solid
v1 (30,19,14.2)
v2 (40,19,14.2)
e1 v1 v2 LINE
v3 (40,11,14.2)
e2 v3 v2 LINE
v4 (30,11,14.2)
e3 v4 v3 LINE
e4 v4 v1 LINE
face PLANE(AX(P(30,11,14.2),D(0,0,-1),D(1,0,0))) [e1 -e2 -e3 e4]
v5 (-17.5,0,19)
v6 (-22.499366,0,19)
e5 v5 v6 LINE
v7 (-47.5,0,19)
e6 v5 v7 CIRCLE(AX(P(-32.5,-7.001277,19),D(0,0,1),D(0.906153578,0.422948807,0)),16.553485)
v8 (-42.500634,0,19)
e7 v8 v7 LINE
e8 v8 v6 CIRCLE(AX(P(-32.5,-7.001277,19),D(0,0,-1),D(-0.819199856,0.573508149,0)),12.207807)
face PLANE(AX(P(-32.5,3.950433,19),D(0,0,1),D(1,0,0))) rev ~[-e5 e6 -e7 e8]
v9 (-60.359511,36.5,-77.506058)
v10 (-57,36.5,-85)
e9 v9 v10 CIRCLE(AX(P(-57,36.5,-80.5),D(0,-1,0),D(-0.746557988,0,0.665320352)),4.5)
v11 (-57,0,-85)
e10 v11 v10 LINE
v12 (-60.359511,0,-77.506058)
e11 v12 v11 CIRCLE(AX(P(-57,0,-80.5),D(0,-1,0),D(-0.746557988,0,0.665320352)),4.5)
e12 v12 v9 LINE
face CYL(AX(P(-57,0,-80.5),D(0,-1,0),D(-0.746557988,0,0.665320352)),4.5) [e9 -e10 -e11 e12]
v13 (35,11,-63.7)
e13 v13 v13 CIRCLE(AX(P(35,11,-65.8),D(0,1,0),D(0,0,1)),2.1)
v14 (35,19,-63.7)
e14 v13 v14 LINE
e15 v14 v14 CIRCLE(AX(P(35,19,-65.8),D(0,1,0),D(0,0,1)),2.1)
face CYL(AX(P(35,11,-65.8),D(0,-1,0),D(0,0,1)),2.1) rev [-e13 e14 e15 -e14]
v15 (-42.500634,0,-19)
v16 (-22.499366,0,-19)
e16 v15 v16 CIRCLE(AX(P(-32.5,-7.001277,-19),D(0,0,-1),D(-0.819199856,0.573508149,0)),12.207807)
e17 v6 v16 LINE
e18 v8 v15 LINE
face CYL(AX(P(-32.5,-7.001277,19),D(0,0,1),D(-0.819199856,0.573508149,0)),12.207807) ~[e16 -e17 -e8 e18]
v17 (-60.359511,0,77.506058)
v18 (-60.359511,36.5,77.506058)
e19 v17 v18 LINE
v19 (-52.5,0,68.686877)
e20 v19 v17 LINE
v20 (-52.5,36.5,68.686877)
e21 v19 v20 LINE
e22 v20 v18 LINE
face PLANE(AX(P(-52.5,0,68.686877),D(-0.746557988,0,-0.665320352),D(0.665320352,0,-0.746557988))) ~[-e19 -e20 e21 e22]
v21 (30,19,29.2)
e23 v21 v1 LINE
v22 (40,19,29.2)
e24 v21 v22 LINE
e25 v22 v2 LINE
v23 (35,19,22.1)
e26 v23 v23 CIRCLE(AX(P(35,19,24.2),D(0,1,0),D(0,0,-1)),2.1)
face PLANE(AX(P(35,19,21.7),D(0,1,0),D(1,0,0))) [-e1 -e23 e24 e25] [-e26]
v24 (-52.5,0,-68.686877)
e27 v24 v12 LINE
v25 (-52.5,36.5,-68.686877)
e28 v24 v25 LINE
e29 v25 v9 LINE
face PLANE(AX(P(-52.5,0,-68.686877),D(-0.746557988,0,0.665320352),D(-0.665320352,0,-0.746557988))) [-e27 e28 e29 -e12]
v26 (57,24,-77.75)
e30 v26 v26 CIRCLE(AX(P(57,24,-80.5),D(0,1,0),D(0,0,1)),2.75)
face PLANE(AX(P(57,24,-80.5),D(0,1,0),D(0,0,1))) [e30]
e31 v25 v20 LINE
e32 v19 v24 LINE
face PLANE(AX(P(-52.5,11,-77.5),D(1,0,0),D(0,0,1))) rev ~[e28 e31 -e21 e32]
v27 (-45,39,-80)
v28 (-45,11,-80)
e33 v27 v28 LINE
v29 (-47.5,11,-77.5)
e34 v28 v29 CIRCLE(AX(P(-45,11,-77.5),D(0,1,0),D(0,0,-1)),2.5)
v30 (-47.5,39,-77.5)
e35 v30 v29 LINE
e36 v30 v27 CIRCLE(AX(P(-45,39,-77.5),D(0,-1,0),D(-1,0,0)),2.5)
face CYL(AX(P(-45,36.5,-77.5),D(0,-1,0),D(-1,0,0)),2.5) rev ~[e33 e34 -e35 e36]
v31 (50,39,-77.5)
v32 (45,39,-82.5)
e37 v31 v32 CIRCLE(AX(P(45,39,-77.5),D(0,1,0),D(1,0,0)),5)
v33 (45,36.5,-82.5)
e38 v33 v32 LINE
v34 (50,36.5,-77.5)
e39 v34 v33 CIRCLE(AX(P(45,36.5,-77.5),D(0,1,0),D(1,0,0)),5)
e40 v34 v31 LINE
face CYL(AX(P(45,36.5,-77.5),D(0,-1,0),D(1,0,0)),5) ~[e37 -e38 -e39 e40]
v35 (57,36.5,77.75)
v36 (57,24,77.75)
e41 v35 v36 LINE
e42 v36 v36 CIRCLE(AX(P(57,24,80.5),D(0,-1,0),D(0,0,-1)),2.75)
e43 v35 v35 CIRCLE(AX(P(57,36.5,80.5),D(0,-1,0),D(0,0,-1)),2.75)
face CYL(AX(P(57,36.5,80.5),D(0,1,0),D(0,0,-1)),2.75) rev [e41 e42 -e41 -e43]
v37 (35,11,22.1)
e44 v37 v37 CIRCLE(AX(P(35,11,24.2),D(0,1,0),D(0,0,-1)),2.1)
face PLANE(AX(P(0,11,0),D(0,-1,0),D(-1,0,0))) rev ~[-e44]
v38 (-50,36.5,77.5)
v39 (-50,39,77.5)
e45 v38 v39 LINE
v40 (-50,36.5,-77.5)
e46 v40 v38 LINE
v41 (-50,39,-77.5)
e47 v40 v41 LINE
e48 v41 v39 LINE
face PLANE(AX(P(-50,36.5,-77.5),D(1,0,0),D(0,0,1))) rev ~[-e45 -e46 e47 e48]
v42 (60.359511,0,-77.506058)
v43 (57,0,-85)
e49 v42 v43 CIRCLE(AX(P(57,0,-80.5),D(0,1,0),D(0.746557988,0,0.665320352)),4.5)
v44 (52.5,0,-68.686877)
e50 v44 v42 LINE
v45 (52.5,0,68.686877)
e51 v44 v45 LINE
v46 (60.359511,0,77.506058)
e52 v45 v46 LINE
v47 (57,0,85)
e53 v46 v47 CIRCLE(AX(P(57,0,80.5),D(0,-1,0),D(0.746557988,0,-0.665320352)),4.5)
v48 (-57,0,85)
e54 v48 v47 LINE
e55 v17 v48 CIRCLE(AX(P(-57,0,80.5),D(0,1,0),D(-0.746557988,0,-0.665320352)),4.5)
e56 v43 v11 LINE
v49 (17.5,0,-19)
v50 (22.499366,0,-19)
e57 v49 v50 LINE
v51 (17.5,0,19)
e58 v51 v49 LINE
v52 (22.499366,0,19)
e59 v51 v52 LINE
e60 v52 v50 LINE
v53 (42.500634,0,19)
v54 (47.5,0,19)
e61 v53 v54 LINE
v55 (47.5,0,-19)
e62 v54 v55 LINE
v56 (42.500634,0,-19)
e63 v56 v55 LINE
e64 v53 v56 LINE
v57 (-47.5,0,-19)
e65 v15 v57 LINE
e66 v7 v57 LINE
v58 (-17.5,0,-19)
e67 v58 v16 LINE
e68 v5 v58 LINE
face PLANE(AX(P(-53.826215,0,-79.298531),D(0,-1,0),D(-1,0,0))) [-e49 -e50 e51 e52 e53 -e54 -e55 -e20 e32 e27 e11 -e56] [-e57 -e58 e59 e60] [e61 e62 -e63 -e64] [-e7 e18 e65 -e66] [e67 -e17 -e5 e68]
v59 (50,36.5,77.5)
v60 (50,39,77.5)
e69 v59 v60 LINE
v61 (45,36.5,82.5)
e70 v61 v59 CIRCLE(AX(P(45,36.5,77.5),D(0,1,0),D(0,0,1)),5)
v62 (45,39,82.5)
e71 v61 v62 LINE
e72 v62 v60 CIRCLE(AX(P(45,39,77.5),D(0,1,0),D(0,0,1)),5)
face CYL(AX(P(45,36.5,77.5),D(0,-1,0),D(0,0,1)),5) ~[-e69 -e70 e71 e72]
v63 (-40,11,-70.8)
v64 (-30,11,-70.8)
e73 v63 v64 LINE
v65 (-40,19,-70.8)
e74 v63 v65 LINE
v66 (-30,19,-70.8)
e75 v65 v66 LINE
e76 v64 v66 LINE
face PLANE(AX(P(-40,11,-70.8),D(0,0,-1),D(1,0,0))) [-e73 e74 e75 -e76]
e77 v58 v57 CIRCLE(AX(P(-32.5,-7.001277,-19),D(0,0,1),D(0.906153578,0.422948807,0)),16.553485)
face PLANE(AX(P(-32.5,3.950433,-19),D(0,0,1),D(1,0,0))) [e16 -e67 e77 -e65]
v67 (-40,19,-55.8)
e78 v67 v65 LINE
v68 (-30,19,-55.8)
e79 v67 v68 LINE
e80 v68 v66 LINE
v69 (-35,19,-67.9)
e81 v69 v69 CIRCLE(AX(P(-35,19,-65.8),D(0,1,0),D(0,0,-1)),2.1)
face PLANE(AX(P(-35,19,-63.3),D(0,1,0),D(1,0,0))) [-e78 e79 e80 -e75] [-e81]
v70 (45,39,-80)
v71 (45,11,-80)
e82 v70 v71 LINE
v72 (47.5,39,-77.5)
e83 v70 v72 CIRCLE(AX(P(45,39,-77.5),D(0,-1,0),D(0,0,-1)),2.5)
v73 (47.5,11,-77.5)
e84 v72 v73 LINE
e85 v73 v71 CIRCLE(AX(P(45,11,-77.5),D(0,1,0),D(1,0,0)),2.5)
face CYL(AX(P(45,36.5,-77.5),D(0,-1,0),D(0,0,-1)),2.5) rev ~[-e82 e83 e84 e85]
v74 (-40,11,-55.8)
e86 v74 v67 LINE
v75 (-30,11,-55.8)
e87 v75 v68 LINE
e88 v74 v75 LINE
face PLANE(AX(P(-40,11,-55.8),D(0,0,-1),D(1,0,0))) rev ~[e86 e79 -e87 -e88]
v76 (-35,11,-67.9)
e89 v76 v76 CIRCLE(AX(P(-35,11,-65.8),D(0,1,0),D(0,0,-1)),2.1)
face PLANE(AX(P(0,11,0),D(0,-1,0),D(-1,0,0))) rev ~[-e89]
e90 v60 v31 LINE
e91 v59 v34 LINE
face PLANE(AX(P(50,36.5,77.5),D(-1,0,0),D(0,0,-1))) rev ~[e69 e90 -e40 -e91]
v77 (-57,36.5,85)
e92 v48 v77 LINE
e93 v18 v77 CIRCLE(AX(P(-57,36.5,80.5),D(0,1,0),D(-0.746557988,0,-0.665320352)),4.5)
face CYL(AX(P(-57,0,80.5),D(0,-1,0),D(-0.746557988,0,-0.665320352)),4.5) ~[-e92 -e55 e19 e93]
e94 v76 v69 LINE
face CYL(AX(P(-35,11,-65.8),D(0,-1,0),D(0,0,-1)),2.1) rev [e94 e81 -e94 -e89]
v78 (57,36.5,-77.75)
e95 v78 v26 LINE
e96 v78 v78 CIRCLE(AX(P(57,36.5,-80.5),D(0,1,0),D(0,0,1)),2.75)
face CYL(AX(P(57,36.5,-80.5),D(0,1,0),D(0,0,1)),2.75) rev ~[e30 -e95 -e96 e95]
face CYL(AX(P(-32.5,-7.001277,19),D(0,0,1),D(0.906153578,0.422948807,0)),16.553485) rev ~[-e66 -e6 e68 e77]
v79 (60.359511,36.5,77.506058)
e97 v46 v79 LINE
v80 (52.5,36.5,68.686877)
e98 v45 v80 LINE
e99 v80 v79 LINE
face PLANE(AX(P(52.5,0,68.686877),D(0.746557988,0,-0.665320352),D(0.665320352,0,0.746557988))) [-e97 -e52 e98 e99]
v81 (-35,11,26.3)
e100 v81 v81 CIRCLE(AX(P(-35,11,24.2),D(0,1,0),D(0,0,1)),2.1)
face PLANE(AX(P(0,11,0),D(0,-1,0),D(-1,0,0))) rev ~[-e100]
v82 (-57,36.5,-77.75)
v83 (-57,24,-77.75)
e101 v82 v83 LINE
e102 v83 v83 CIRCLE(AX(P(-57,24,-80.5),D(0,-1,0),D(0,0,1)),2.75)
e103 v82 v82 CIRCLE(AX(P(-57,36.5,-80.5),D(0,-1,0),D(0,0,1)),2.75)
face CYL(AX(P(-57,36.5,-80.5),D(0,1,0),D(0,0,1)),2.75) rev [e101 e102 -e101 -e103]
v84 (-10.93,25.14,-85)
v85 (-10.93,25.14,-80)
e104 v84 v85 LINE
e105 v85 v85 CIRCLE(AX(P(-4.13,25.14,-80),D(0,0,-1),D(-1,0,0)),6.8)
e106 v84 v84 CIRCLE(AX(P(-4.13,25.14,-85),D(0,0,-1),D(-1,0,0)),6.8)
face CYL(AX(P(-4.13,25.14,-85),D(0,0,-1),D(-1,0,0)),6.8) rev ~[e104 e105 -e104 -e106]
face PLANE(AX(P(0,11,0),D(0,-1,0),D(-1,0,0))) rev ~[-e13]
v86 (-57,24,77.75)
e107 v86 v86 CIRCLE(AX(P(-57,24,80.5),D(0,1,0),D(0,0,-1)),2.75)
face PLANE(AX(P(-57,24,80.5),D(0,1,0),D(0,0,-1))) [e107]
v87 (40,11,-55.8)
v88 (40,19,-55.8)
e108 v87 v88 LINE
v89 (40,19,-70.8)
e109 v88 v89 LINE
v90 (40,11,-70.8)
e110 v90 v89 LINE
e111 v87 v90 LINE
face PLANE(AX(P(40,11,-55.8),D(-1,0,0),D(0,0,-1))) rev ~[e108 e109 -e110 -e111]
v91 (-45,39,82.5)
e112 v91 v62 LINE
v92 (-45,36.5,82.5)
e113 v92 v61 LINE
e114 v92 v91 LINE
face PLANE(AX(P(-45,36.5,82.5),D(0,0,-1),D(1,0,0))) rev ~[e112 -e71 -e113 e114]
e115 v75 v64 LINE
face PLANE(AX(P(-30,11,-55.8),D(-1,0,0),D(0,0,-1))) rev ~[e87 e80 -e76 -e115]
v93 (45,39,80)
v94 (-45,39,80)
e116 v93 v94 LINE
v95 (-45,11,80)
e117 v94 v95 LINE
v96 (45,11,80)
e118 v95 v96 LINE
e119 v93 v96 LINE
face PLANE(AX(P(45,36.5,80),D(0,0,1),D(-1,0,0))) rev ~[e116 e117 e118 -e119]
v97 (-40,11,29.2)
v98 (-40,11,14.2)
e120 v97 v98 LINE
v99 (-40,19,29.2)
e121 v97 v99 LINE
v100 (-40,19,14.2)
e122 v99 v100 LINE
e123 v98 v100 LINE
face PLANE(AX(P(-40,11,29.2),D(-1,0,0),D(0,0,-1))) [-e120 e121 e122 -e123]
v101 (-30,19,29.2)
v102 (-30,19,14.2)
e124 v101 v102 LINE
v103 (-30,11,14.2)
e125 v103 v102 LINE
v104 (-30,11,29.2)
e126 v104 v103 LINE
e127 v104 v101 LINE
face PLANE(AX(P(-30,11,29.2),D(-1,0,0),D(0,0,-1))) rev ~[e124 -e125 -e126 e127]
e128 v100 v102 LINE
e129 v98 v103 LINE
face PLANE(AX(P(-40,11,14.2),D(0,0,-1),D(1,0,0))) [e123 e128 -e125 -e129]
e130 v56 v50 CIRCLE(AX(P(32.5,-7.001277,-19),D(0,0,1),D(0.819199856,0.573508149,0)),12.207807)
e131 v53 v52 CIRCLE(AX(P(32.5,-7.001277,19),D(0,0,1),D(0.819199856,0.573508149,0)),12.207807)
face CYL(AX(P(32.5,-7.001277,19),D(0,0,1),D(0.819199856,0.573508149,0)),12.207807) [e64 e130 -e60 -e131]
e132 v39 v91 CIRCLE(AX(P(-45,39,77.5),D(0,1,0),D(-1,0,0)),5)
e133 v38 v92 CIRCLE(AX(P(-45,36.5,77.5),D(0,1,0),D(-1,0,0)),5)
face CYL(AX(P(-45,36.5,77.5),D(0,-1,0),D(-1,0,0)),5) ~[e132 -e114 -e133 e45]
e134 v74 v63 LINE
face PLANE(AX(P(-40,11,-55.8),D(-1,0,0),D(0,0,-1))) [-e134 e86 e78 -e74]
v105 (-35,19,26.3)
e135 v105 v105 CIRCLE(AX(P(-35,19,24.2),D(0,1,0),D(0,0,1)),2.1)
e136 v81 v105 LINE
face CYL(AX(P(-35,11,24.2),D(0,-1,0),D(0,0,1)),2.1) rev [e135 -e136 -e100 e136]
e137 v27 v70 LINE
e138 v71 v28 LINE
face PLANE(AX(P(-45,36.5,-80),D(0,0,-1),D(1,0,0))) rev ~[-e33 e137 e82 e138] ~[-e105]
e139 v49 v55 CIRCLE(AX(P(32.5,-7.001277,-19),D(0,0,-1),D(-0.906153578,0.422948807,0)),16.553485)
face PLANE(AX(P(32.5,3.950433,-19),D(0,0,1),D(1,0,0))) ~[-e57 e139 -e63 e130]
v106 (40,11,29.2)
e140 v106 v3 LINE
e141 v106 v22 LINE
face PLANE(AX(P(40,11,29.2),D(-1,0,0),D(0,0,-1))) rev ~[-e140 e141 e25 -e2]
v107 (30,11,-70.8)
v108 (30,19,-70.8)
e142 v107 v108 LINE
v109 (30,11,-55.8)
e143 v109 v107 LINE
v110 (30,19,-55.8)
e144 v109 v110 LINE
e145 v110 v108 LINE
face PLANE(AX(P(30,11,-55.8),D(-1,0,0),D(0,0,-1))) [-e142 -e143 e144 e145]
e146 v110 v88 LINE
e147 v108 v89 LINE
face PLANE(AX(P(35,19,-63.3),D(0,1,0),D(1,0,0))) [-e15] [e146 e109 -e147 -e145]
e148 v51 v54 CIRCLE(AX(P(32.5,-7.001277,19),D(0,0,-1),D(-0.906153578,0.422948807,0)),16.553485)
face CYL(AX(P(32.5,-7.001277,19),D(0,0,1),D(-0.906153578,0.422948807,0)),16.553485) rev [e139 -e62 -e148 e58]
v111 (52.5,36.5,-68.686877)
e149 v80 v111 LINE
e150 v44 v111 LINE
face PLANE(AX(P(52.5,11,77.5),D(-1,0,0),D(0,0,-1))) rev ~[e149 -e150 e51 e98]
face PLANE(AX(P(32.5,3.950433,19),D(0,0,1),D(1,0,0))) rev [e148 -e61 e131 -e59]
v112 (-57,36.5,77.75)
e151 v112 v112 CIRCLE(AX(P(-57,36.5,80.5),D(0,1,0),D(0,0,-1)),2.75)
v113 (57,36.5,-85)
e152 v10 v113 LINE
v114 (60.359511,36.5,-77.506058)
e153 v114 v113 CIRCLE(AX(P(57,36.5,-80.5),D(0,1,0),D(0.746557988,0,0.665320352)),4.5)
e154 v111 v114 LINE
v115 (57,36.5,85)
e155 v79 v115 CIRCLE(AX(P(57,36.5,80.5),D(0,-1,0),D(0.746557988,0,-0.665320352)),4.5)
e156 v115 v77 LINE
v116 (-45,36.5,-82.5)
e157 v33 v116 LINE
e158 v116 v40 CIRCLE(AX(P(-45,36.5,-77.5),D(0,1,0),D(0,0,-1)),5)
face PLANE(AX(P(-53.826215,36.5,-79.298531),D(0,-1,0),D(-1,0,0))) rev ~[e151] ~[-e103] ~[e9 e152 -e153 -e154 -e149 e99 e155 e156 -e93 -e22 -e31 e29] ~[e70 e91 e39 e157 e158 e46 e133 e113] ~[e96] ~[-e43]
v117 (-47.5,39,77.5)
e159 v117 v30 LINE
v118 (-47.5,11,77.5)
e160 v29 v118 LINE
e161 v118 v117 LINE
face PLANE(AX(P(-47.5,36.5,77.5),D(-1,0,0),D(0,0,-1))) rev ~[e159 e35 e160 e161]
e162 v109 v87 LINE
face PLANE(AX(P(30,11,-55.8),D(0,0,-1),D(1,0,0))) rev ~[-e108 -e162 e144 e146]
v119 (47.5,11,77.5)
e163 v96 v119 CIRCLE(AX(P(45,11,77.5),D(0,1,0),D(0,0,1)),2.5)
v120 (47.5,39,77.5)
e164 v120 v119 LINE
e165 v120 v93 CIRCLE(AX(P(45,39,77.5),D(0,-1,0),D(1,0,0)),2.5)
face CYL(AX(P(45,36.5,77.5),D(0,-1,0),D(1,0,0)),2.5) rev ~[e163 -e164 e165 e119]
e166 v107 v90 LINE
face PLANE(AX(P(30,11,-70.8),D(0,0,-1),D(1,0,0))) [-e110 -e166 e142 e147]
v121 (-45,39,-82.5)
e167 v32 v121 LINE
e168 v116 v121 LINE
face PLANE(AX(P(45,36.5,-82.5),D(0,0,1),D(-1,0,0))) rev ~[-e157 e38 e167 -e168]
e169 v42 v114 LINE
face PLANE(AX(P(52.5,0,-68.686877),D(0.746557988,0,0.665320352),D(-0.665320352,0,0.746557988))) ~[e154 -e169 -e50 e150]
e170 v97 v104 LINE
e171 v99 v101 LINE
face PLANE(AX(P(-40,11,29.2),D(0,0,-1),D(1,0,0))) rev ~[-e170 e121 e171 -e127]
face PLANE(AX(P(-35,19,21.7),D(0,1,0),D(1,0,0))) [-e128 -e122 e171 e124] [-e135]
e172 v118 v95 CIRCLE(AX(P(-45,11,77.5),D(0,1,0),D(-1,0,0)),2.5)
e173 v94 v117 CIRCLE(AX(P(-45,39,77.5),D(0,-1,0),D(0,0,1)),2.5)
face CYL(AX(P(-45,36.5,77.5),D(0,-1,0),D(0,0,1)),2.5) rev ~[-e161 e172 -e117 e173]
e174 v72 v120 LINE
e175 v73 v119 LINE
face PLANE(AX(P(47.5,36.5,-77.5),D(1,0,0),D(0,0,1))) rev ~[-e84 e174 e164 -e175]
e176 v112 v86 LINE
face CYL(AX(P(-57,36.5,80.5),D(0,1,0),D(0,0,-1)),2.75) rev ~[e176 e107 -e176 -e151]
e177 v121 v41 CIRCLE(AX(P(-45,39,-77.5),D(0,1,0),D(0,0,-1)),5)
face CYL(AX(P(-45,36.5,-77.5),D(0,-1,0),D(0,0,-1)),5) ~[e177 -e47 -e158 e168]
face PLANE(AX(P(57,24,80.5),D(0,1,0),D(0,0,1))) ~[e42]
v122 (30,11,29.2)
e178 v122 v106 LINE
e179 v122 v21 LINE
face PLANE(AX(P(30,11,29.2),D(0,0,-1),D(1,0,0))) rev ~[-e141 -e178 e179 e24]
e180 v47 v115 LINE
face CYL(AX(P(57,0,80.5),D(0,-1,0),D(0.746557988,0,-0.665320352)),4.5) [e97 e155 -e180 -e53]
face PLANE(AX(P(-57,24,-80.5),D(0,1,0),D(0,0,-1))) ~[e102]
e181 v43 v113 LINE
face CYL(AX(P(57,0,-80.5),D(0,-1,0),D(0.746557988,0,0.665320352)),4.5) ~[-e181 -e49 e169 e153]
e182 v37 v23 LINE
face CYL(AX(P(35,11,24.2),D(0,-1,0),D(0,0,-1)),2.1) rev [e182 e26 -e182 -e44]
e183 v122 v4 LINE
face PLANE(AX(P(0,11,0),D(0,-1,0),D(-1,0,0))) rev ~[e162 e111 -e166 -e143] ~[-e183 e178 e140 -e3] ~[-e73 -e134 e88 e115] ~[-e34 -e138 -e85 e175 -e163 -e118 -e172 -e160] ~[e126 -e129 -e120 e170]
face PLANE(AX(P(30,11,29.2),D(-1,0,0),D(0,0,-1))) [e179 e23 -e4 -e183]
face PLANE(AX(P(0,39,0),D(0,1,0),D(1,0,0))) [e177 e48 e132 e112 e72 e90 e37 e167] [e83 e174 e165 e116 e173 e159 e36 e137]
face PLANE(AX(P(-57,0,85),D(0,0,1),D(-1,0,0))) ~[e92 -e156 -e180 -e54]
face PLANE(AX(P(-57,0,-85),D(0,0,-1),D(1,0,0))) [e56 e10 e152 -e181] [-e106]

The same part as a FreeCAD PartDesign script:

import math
import FreeCAD as App
import Part
import Sketcher
from FreeCAD import Vector

doc = App.newDocument("Part")
body = doc.addObject("PartDesign::Body", "Body")

sketch1 = body.newObject("Sketcher::SketchObject", "Sketch")
sketch1.AttachmentSupport = (doc.getObject("XZ_Plane"), [""])
sketch1.MapMode = "FlatFace"
sketch1.addGeometry(Part.LineSegment(Vector(45, -85, 0), Vector(-45, -85, 0)), False)
sketch1.addGeometry(Part.ArcOfCircle(Part.Circle(Vector(-45, -78, 0), Vector(0, 0, 1), 8), math.radians(180), math.radians(270)), False)
sketch1.addGeometry(Part.LineSegment(Vector(-52, -78, 0), Vector(-52, 78, 0)), False)
sketch1.addGeometry(Part.ArcOfCircle(Part.Circle(Vector(-45, 78, 0), Vector(0, 0, 1), 8), math.radians(90), math.radians(180)), False)
sketch1.addGeometry(Part.LineSegment(Vector(-45, 85, 0), Vector(45, 85, 0)), False)
sketch1.addGeometry(Part.ArcOfCircle(Part.Circle(Vector(45, 78, 0), Vector(0, 0, 1), 8), math.radians(0), math.radians(90)), False)
sketch1.addGeometry(Part.LineSegment(Vector(52, 78, 0), Vector(52, -78, 0)), False)
sketch1.addGeometry(Part.ArcOfCircle(Part.Circle(Vector(45, -78, 0), Vector(0, 0, 1), 8), math.radians(-90), math.radians(0)), False)
sketch1.addConstraint(Sketcher.Constraint("Tangent", 0, 2, 1, 2))
sketch1.addConstraint(Sketcher.Constraint("Tangent", 1, 1, 2, 1))
sketch1.addConstraint(Sketcher.Constraint("Tangent", 2, 2, 3, 2))
sketch1.addConstraint(Sketcher.Constraint("Tangent", 3, 1, 4, 1))
sketch1.addConstraint(Sketcher.Constraint("Tangent", 4, 2, 5, 2))
sketch1.addConstraint(Sketcher.Constraint("Tangent", 5, 1, 6, 1))
sketch1.addConstraint(Sketcher.Constraint("Tangent", 6, 2, 7, 2))
sketch1.addConstraint(Sketcher.Constraint("Tangent", 7, 1, 0, 1))
sketch1.addConstraint(Sketcher.Constraint("Horizontal", 0))
sketch1.addConstraint(Sketcher.Constraint("Vertical", 2))
sketch1.addConstraint(Sketcher.Constraint("Horizontal", 4))
sketch1.addConstraint(Sketcher.Constraint("Vertical", 6))
sketch1.addConstraint(Sketcher.Constraint("Equal", 1, 3))
sketch1.addConstraint(Sketcher.Constraint("Equal", 3, 5))
sketch1.addConstraint(Sketcher.Constraint("Equal", 5, 7))
sketch1.addConstraint(Sketcher.Constraint("Symmetric", 1, 3, 5, 3, -1, 1))
sketch1.addConstraint(Sketcher.Constraint("Radius", 1, 7.5))
sketch1.addConstraint(Sketcher.Constraint("DistanceX", 0, 2, 0, 1, 90.0))
sketch1.addConstraint(Sketcher.Constraint("DistanceY", 2, 1, 2, 2, 155.0))
pad1 = body.newObject("PartDesign::Pad", "Pad")
pad1.Profile = sketch1
pad1.Length = 11
pad1.Reversed = True

sketch2 = body.newObject("Sketcher::SketchObject", "Sketch001")
sketch2.AttachmentSupport = (doc.getObject("XZ_Plane"), [""])
sketch2.MapMode = "FlatFace"
sketch2.AttachmentOffset = App.Placement(Vector(0, 0, -11), App.Rotation())
sketch2.addGeometry(Part.ArcOfCircle(Part.Circle(Vector(45, -77.5, 0), Vector(0, 0, 1), 7.5), math.radians(-90), math.radians(0)), False)
sketch2.addGeometry(Part.LineSegment(Vector(45, -85, 0), Vector(-45, -85, 0)), False)
sketch2.addGeometry(Part.ArcOfCircle(Part.Circle(Vector(-45, -77.5, 0), Vector(0, 0, 1), 7.5), math.radians(180), math.radians(270)), False)
sketch2.addGeometry(Part.LineSegment(Vector(-52.5, -77.5, 0), Vector(-52.5, 77.5, 0)), False)
sketch2.addGeometry(Part.ArcOfCircle(Part.Circle(Vector(-45, 77.5, 0), Vector(0, 0, 1), 7.5), math.radians(90), math.radians(180)), False)
sketch2.addGeometry(Part.LineSegment(Vector(-45, 85, 0), Vector(45, 85, 0)), False)
sketch2.addGeometry(Part.ArcOfCircle(Part.Circle(Vector(45, 77.5, 0), Vector(0, 0, 1), 7.5), math.radians(0), math.radians(90)), False)
sketch2.addGeometry(Part.LineSegment(Vector(52.5, 77.5, 0), Vector(52.5, -77.5, 0)), False)
sketch2.addGeometry(Part.ArcOfCircle(Part.Circle(Vector(-45, -77.5, 0), Vector(0, 0, 1), 2.5), math.radians(180), math.radians(270)), False)
sketch2.addGeometry(Part.LineSegment(Vector(-45, -80, 0), Vector(45, -80, 0)), False)
sketch2.addGeometry(Part.ArcOfCircle(Part.Circle(Vector(45, -77.5, 0), Vector(0, 0, 1), 2.5), math.radians(-90), math.radians(0)), False)
sketch2.addGeometry(Part.LineSegment(Vector(47.5, -77.5, 0), Vector(47.5, 77.5, 0)), False)
sketch2.addGeometry(Part.ArcOfCircle(Part.Circle(Vector(45, 77.5, 0), Vector(0, 0, 1), 2.5), math.radians(0), math.radians(90)), False)
sketch2.addGeometry(Part.LineSegment(Vector(45, 80, 0), Vector(-45, 80, 0)), False)
sketch2.addGeometry(Part.ArcOfCircle(Part.Circle(Vector(-45, 77.5, 0), Vector(0, 0, 1), 2.5), math.radians(90), math.radians(180)), False)
sketch2.addGeometry(Part.LineSegment(Vector(-47.5, 77.5, 0), Vector(-47.5, -77.5, 0)), False)
sketch2.addConstraint(Sketcher.Constraint("Tangent", 0, 1, 1, 1))
sketch2.addConstraint(Sketcher.Constraint("Tangent", 1, 2, 2, 2))
sketch2.addConstraint(Sketcher.Constraint("Tangent", 2, 1, 3, 1))
sketch2.addConstraint(Sketcher.Constraint("Tangent", 3, 2, 4, 2))
sketch2.addConstraint(Sketcher.Constraint("Tangent", 4, 1, 5, 1))
sketch2.addConstraint(Sketcher.Constraint("Tangent", 5, 2, 6, 2))
sketch2.addConstraint(Sketcher.Constraint("Tangent", 6, 1, 7, 1))
sketch2.addConstraint(Sketcher.Constraint("Tangent", 7, 2, 0, 2))
sketch2.addConstraint(Sketcher.Constraint("Tangent", 8, 2, 9, 1))
sketch2.addConstraint(Sketcher.Constraint("Tangent", 9, 2, 10, 1))
sketch2.addConstraint(Sketcher.Constraint("Tangent", 10, 2, 11, 1))
sketch2.addConstraint(Sketcher.Constraint("Tangent", 11, 2, 12, 1))
sketch2.addConstraint(Sketcher.Constraint("Tangent", 12, 2, 13, 1))
sketch2.addConstraint(Sketcher.Constraint("Tangent", 13, 2, 14, 1))
sketch2.addConstraint(Sketcher.Constraint("Tangent", 14, 2, 15, 1))
sketch2.addConstraint(Sketcher.Constraint("Tangent", 15, 2, 8, 1))
sketch2.addConstraint(Sketcher.Constraint("Horizontal", 1))
sketch2.addConstraint(Sketcher.Constraint("Vertical", 3))
sketch2.addConstraint(Sketcher.Constraint("Horizontal", 5))
sketch2.addConstraint(Sketcher.Constraint("Vertical", 7))
sketch2.addConstraint(Sketcher.Constraint("Horizontal", 9))
sketch2.addConstraint(Sketcher.Constraint("Vertical", 11))
sketch2.addConstraint(Sketcher.Constraint("Horizontal", 13))
sketch2.addConstraint(Sketcher.Constraint("Vertical", 15))
sketch2.addConstraint(Sketcher.Constraint("Coincident", 8, 3, 2, 3))
sketch2.addConstraint(Sketcher.Constraint("Coincident", 10, 3, 0, 3))
sketch2.addConstraint(Sketcher.Constraint("Coincident", 12, 3, 6, 3))
sketch2.addConstraint(Sketcher.Constraint("Equal", 0, 2))
sketch2.addConstraint(Sketcher.Constraint("Equal", 2, 4))
sketch2.addConstraint(Sketcher.Constraint("Equal", 4, 6))
sketch2.addConstraint(Sketcher.Constraint("Equal", 12, 14))
sketch2.addConstraint(Sketcher.Constraint("Symmetric", 0, 3, 4, 3, -1, 1))
sketch2.addConstraint(Sketcher.Constraint("Radius", 0, 7.5))
sketch2.addConstraint(Sketcher.Constraint("Radius", 8, 2.5))
sketch2.addConstraint(Sketcher.Constraint("DistanceX", 1, 2, 1, 1, 90.0))
sketch2.addConstraint(Sketcher.Constraint("DistanceY", 3, 1, 3, 2, 155.0))
pad2 = body.newObject("PartDesign::Pad", "Pad001")
pad2.Profile = sketch2
pad2.Length = 25.5
pad2.Reversed = True

sketch3 = body.newObject("Sketcher::SketchObject", "Sketch002")
sketch3.AttachmentSupport = (doc.getObject("XZ_Plane"), [""])
sketch3.MapMode = "FlatFace"
sketch3.AttachmentOffset = App.Placement(Vector(0, 0, -36.5), App.Rotation())
sketch3.addGeometry(Part.LineSegment(Vector(45, -82.5, 0), Vector(-45, -82.5, 0)), False)
sketch3.addGeometry(Part.ArcOfCircle(Part.Circle(Vector(-45, -77.5, 0), Vector(0, 0, 1), 5), math.radians(180), math.radians(270)), False)
sketch3.addGeometry(Part.LineSegment(Vector(-50, -77.5, 0), Vector(-50, 77.5, 0)), False)
sketch3.addGeometry(Part.ArcOfCircle(Part.Circle(Vector(-45, 77.5, 0), Vector(0, 0, 1), 5), math.radians(90), math.radians(180)), False)
sketch3.addGeometry(Part.LineSegment(Vector(-45, 82.5, 0), Vector(45, 82.5, 0)), False)
sketch3.addGeometry(Part.ArcOfCircle(Part.Circle(Vector(45, 77.5, 0), Vector(0, 0, 1), 5), math.radians(0), math.radians(90)), False)
sketch3.addGeometry(Part.LineSegment(Vector(50, 77.5, 0), Vector(50, -77.5, 0)), False)
sketch3.addGeometry(Part.ArcOfCircle(Part.Circle(Vector(45, -77.5, 0), Vector(0, 0, 1), 5), math.radians(-90), math.radians(0)), False)
sketch3.addGeometry(Part.ArcOfCircle(Part.Circle(Vector(-45, 77.5, 0), Vector(0, 0, 1), 2.5), math.radians(90), math.radians(180)), False)
sketch3.addGeometry(Part.LineSegment(Vector(-47.5, 77.5, 0), Vector(-47.5, -77.5, 0)), False)
sketch3.addGeometry(Part.ArcOfCircle(Part.Circle(Vector(-45, -77.5, 0), Vector(0, 0, 1), 2.5), math.radians(180), math.radians(270)), False)
sketch3.addGeometry(Part.LineSegment(Vector(-45, -80, 0), Vector(45, -80, 0)), False)
sketch3.addGeometry(Part.ArcOfCircle(Part.Circle(Vector(45, -77.5, 0), Vector(0, 0, 1), 2.5), math.radians(-90), math.radians(0)), False)
sketch3.addGeometry(Part.LineSegment(Vector(47.5, -77.5, 0), Vector(47.5, 77.5, 0)), False)
sketch3.addGeometry(Part.ArcOfCircle(Part.Circle(Vector(45, 77.5, 0), Vector(0, 0, 1), 2.5), math.radians(0), math.radians(90)), False)
sketch3.addGeometry(Part.LineSegment(Vector(45, 80, 0), Vector(-45, 80, 0)), False)
sketch3.addConstraint(Sketcher.Constraint("Tangent", 0, 2, 1, 2))
sketch3.addConstraint(Sketcher.Constraint("Tangent", 1, 1, 2, 1))
sketch3.addConstraint(Sketcher.Constraint("Tangent", 2, 2, 3, 2))
sketch3.addConstraint(Sketcher.Constraint("Tangent", 3, 1, 4, 1))
sketch3.addConstraint(Sketcher.Constraint("Tangent", 4, 2, 5, 2))
sketch3.addConstraint(Sketcher.Constraint("Tangent", 5, 1, 6, 1))
sketch3.addConstraint(Sketcher.Constraint("Tangent", 6, 2, 7, 2))
sketch3.addConstraint(Sketcher.Constraint("Tangent", 7, 1, 0, 1))
sketch3.addConstraint(Sketcher.Constraint("Tangent", 8, 2, 9, 1))
sketch3.addConstraint(Sketcher.Constraint("Tangent", 9, 2, 10, 1))
sketch3.addConstraint(Sketcher.Constraint("Tangent", 10, 2, 11, 1))
sketch3.addConstraint(Sketcher.Constraint("Tangent", 11, 2, 12, 1))
sketch3.addConstraint(Sketcher.Constraint("Tangent", 12, 2, 13, 1))
sketch3.addConstraint(Sketcher.Constraint("Tangent", 13, 2, 14, 1))
sketch3.addConstraint(Sketcher.Constraint("Tangent", 14, 2, 15, 1))
sketch3.addConstraint(Sketcher.Constraint("Tangent", 15, 2, 8, 1))
sketch3.addConstraint(Sketcher.Constraint("Horizontal", 0))
sketch3.addConstraint(Sketcher.Constraint("Vertical", 2))
sketch3.addConstraint(Sketcher.Constraint("Horizontal", 4))
sketch3.addConstraint(Sketcher.Constraint("Vertical", 6))
sketch3.addConstraint(Sketcher.Constraint("Vertical", 9))
sketch3.addConstraint(Sketcher.Constraint("Horizontal", 11))
sketch3.addConstraint(Sketcher.Constraint("Vertical", 13))
sketch3.addConstraint(Sketcher.Constraint("Horizontal", 15))
sketch3.addConstraint(Sketcher.Constraint("Coincident", 8, 3, 3, 3))
sketch3.addConstraint(Sketcher.Constraint("Coincident", 10, 3, 1, 3))
sketch3.addConstraint(Sketcher.Constraint("Coincident", 12, 3, 7, 3))
sketch3.addConstraint(Sketcher.Constraint("Equal", 1, 3))
sketch3.addConstraint(Sketcher.Constraint("Equal", 3, 5))
sketch3.addConstraint(Sketcher.Constraint("Equal", 5, 7))
sketch3.addConstraint(Sketcher.Constraint("Equal", 12, 14))
sketch3.addConstraint(Sketcher.Constraint("Symmetric", 1, 3, 5, 3, -1, 1))
sketch3.addConstraint(Sketcher.Constraint("Radius", 1, 5.0))
sketch3.addConstraint(Sketcher.Constraint("Radius", 8, 2.5))
sketch3.addConstraint(Sketcher.Constraint("DistanceX", 0, 2, 0, 1, 90.0))
sketch3.addConstraint(Sketcher.Constraint("DistanceY", 2, 1, 2, 2, 155.0))
pad3 = body.newObject("PartDesign::Pad", "Pad002")
pad3.Profile = sketch3
pad3.Length = 2.5
pad3.Reversed = True

sketch4 = body.newObject("Sketcher::SketchObject", "Sketch003")
sketch4.AttachmentSupport = (doc.getObject("XZ_Plane"), [""])
sketch4.MapMode = "FlatFace"
sketch4.addGeometry(Part.LineSegment(Vector(57, 85, 0), Vector(45, 85, 0)), False)
sketch4.addGeometry(Part.ArcOfCircle(Part.Circle(Vector(45, 77.5, 0), Vector(0, 0, 1), 7.5), math.radians(0), math.radians(90)), False)
sketch4.addGeometry(Part.LineSegment(Vector(52.5, 77.5, 0), Vector(52.5, 68.7, 0)), False)
sketch4.addGeometry(Part.LineSegment(Vector(52.5, 68.7, 0), Vector(60.4, 77.5, 0)), False)
sketch4.addGeometry(Part.ArcOfCircle(Part.Circle(Vector(57, 80.5, 0), Vector(0, 0, 1), 4.5), math.radians(-42), math.radians(90)), False)
sketch4.addConstraint(Sketcher.Constraint("Tangent", 0, 2, 1, 2))
sketch4.addConstraint(Sketcher.Constraint("Tangent", 1, 1, 2, 1))
sketch4.addConstraint(Sketcher.Constraint("Coincident", 2, 2, 3, 1))
sketch4.addConstraint(Sketcher.Constraint("Tangent", 3, 2, 4, 1))
sketch4.addConstraint(Sketcher.Constraint("Tangent", 4, 2, 0, 1))
sketch4.addConstraint(Sketcher.Constraint("Horizontal", 0))
sketch4.addConstraint(Sketcher.Constraint("Vertical", 2))
sketch4.addConstraint(Sketcher.Constraint("Radius", 1, 7.5))
sketch4.addConstraint(Sketcher.Constraint("Radius", 4, 4.5))
sketch4.addConstraint(Sketcher.Constraint("DistanceX", 0, 2, 0, 1, 12.0))
sketch4.addConstraint(Sketcher.Constraint("DistanceX", -1, 1, 1, 3, 45.0))
sketch4.addConstraint(Sketcher.Constraint("DistanceY", -1, 1, 0, 2, 85.0))
sketch4.addConstraint(Sketcher.Constraint("DistanceY", 2, 2, 2, 1, 8.813123))
pad4 = body.newObject("PartDesign::Pad", "Pad003")
pad4.Profile = sketch4
pad4.Length = 36.5
pad4.Reversed = True
doc.recompute()

mirrored = body.newObject("PartDesign::Mirrored", "Mirrored")
mirrored.Originals = [pad4]
mirrored.MirrorPlane = (doc.getObject("YZ_Plane"), [""])
body.Tip = mirrored
doc.recompute()

mirrored2 = body.newObject("PartDesign::Mirrored", "Mirrored001")
mirrored2.Originals = [pad4]
mirrored2.MirrorPlane = (doc.getObject("XY_Plane"), [""])
body.Tip = mirrored2

sketch5 = body.newObject("Sketcher::SketchObject", "Sketch004")
sketch5.AttachmentSupport = (doc.getObject("XZ_Plane"), [""])
sketch5.MapMode = "FlatFace"
sketch5.addGeometry(Part.LineSegment(Vector(-57, -85, 0), Vector(-45, -85, 0)), False)
sketch5.addGeometry(Part.ArcOfCircle(Part.Circle(Vector(-45, -77.5, 0), Vector(0, 0, 1), 7.5), math.radians(180), math.radians(270)), False)
sketch5.addGeometry(Part.LineSegment(Vector(-52.5, -77.5, 0), Vector(-52.5, -68.7, 0)), False)
sketch5.addGeometry(Part.LineSegment(Vector(-52.5, -68.7, 0), Vector(-60.4, -77.5, 0)), False)
sketch5.addGeometry(Part.ArcOfCircle(Part.Circle(Vector(-57, -80.5, 0), Vector(0, 0, 1), 4.5), math.radians(138), math.radians(270)), False)
sketch5.addConstraint(Sketcher.Constraint("Tangent", 0, 2, 1, 2))
sketch5.addConstraint(Sketcher.Constraint("Tangent", 1, 1, 2, 1))
sketch5.addConstraint(Sketcher.Constraint("Coincident", 2, 2, 3, 1))
sketch5.addConstraint(Sketcher.Constraint("Tangent", 3, 2, 4, 1))
sketch5.addConstraint(Sketcher.Constraint("Tangent", 4, 2, 0, 1))
sketch5.addConstraint(Sketcher.Constraint("Horizontal", 0))
sketch5.addConstraint(Sketcher.Constraint("Vertical", 2))
sketch5.addConstraint(Sketcher.Constraint("Radius", 1, 7.5))
sketch5.addConstraint(Sketcher.Constraint("Radius", 4, 4.5))
sketch5.addConstraint(Sketcher.Constraint("DistanceX", 0, 1, 0, 2, 12.0))
sketch5.addConstraint(Sketcher.Constraint("DistanceX", 1, 3, -1, 1, 45.0))
sketch5.addConstraint(Sketcher.Constraint("DistanceY", 0, 2, -1, 1, 85.0))
sketch5.addConstraint(Sketcher.Constraint("DistanceY", 2, 1, 2, 2, 8.813123))
pad5 = body.newObject("PartDesign::Pad", "Pad004")
pad5.Profile = sketch5
pad5.Length = 36.5
pad5.Reversed = True

sketch6 = body.newObject("Sketcher::SketchObject", "Sketch005")
sketch6.AttachmentSupport = (doc.getObject("XZ_Plane"), [""])
sketch6.MapMode = "FlatFace"
sketch6.AttachmentOffset = App.Placement(Vector(0, 0, -11), App.Rotation())
sketch6.addGeometry(Part.LineSegment(Vector(-40, -70.8, 0), Vector(-40, -55.8, 0)), False)
sketch6.addGeometry(Part.LineSegment(Vector(-40, -55.8, 0), Vector(-30, -55.8, 0)), False)
sketch6.addGeometry(Part.LineSegment(Vector(-30, -55.8, 0), Vector(-30, -70.8, 0)), False)
sketch6.addGeometry(Part.LineSegment(Vector(-30, -70.8, 0), Vector(-40, -70.8, 0)), False)
sketch6.addGeometry(Part.Circle(Vector(-35, -65.8, 0), Vector(0, 0, 1), 2.1), False)
sketch6.addGeometry(Part.LineSegment(Vector(-40, 14.2, 0), Vector(-40, 29.2, 0)), False)
sketch6.addGeometry(Part.LineSegment(Vector(-40, 29.2, 0), Vector(-30, 29.2, 0)), False)
sketch6.addGeometry(Part.LineSegment(Vector(-30, 29.2, 0), Vector(-30, 14.2, 0)), False)
sketch6.addGeometry(Part.LineSegment(Vector(-30, 14.2, 0), Vector(-40, 14.2, 0)), False)
sketch6.addGeometry(Part.Circle(Vector(-35, 24.2, 0), Vector(0, 0, 1), 2.1), False)
sketch6.addGeometry(Part.LineSegment(Vector(30, 14.2, 0), Vector(30, 29.2, 0)), False)
sketch6.addGeometry(Part.LineSegment(Vector(30, 29.2, 0), Vector(40, 29.2, 0)), False)
sketch6.addGeometry(Part.LineSegment(Vector(40, 29.2, 0), Vector(40, 14.2, 0)), False)
sketch6.addGeometry(Part.LineSegment(Vector(40, 14.2, 0), Vector(30, 14.2, 0)), False)
sketch6.addGeometry(Part.Circle(Vector(35, 24.2, 0), Vector(0, 0, 1), 2.1), False)
sketch6.addGeometry(Part.LineSegment(Vector(30, -70.8, 0), Vector(30, -55.8, 0)), False)
sketch6.addGeometry(Part.LineSegment(Vector(30, -55.8, 0), Vector(40, -55.8, 0)), False)
sketch6.addGeometry(Part.LineSegment(Vector(40, -55.8, 0), Vector(40, -70.8, 0)), False)
sketch6.addGeometry(Part.LineSegment(Vector(40, -70.8, 0), Vector(30, -70.8, 0)), False)
sketch6.addGeometry(Part.Circle(Vector(35, -65.8, 0), Vector(0, 0, 1), 2.1), False)
sketch6.addConstraint(Sketcher.Constraint("Coincident", 0, 2, 1, 1))
sketch6.addConstraint(Sketcher.Constraint("Coincident", 1, 2, 2, 1))
sketch6.addConstraint(Sketcher.Constraint("Coincident", 2, 2, 3, 1))
sketch6.addConstraint(Sketcher.Constraint("Coincident", 3, 2, 0, 1))
sketch6.addConstraint(Sketcher.Constraint("Coincident", 5, 2, 6, 1))
sketch6.addConstraint(Sketcher.Constraint("Coincident", 6, 2, 7, 1))
sketch6.addConstraint(Sketcher.Constraint("Coincident", 7, 2, 8, 1))
sketch6.addConstraint(Sketcher.Constraint("Coincident", 8, 2, 5, 1))
sketch6.addConstraint(Sketcher.Constraint("Coincident", 10, 2, 11, 1))
sketch6.addConstraint(Sketcher.Constraint("Coincident", 11, 2, 12, 1))
sketch6.addConstraint(Sketcher.Constraint("Coincident", 12, 2, 13, 1))
sketch6.addConstraint(Sketcher.Constraint("Coincident", 13, 2, 10, 1))
sketch6.addConstraint(Sketcher.Constraint("Coincident", 15, 2, 16, 1))
sketch6.addConstraint(Sketcher.Constraint("Coincident", 16, 2, 17, 1))
sketch6.addConstraint(Sketcher.Constraint("Coincident", 17, 2, 18, 1))
sketch6.addConstraint(Sketcher.Constraint("Coincident", 18, 2, 15, 1))
sketch6.addConstraint(Sketcher.Constraint("Vertical", 0))
sketch6.addConstraint(Sketcher.Constraint("Horizontal", 1))
sketch6.addConstraint(Sketcher.Constraint("Vertical", 2))
sketch6.addConstraint(Sketcher.Constraint("Horizontal", 3))
sketch6.addConstraint(Sketcher.Constraint("Vertical", 5))
sketch6.addConstraint(Sketcher.Constraint("Horizontal", 6))
sketch6.addConstraint(Sketcher.Constraint("Vertical", 7))
sketch6.addConstraint(Sketcher.Constraint("Horizontal", 8))
sketch6.addConstraint(Sketcher.Constraint("Vertical", 10))
sketch6.addConstraint(Sketcher.Constraint("Horizontal", 11))
sketch6.addConstraint(Sketcher.Constraint("Vertical", 12))
sketch6.addConstraint(Sketcher.Constraint("Horizontal", 13))
sketch6.addConstraint(Sketcher.Constraint("Vertical", 15))
sketch6.addConstraint(Sketcher.Constraint("Horizontal", 16))
sketch6.addConstraint(Sketcher.Constraint("Vertical", 17))
sketch6.addConstraint(Sketcher.Constraint("Horizontal", 18))
sketch6.addConstraint(Sketcher.Constraint("Equal", 4, 9))
sketch6.addConstraint(Sketcher.Constraint("Equal", 9, 14))
sketch6.addConstraint(Sketcher.Constraint("Equal", 14, 19))
sketch6.addConstraint(Sketcher.Constraint("Symmetric", 9, 3, 14, 3, -2))
sketch6.addConstraint(Sketcher.Constraint("Symmetric", 4, 3, 19, 3, -2))
sketch6.addConstraint(Sketcher.Constraint("Symmetric", 6, 2, 10, 2, -2))
sketch6.addConstraint(Sketcher.Constraint("Symmetric", 8, 2, 12, 2, -2))
sketch6.addConstraint(Sketcher.Constraint("Symmetric", 1, 2, 15, 2, -2))
sketch6.addConstraint(Sketcher.Constraint("Symmetric", 3, 2, 17, 2, -2))
sketch6.addConstraint(Sketcher.Constraint("Vertical", 4, 3, 9, 3))
sketch6.addConstraint(Sketcher.Constraint("Vertical", 3, 2, 5, 2))
sketch6.addConstraint(Sketcher.Constraint("Vertical", 2, 2, 6, 2))
sketch6.addConstraint(Sketcher.Constraint("Equal", 2, 5))
sketch6.addConstraint(Sketcher.Constraint("Diameter", 4, 4.2))
sketch6.addConstraint(Sketcher.Constraint("DistanceX", 1, 1, 1, 2, 10.0))
sketch6.addConstraint(Sketcher.Constraint("DistanceY", 0, 1, 0, 2, 15.0))
sketch6.addConstraint(Sketcher.Constraint("DistanceX", 4, 3, -1, 1, 35.0))
sketch6.addConstraint(Sketcher.Constraint("DistanceX", 0, 2, -1, 1, 40.0))
sketch6.addConstraint(Sketcher.Constraint("DistanceY", 4, 3, 9, 3, 90.0))
sketch6.addConstraint(Sketcher.Constraint("DistanceY", 4, 3, 0, 2, 10.0))
sketch6.addConstraint(Sketcher.Constraint("DistanceY", 9, 3, 5, 2, 5.0))
sketch6.addConstraint(Sketcher.Constraint("DistanceY", 4, 3, -1, 1, 65.8))
pad6 = body.newObject("PartDesign::Pad", "Pad005")
pad6.Profile = sketch6
pad6.Length = 8
pad6.Reversed = True

sketch7 = body.newObject("Sketcher::SketchObject", "Sketch006")
sketch7.AttachmentSupport = (doc.getObject("XY_Plane"), [""])
sketch7.MapMode = "FlatFace"
sketch7.AttachmentOffset = App.Placement(Vector(0, 0, -85), App.Rotation())
sketch7.addGeometry(Part.Circle(Vector(-4, 25, 0), Vector(0, 0, 1), 7), False)
sketch7.addConstraint(Sketcher.Constraint("Diameter", 0, 13.6))
sketch7.addConstraint(Sketcher.Constraint("DistanceX", 0, 3, -1, 1, 4.13))
sketch7.addConstraint(Sketcher.Constraint("DistanceY", -1, 1, 0, 3, 25.14))
pocket1 = body.newObject("PartDesign::Pocket", "Pocket")
pocket1.Profile = sketch7
pocket1.Length = 8
pocket1.Reversed = True

sketch8 = body.newObject("Sketcher::SketchObject", "Sketch007")
sketch8.AttachmentSupport = (doc.getObject("YZ_Plane"), [""])
sketch8.MapMode = "FlatFace"
sketch8.AttachmentOffset = App.Placement(Vector(0, 0, 47.5), App.Rotation())
sketch8.addGeometry(Part.Circle(Vector(22, 0, 0), Vector(0, 0, 1), 6), False)
sketch8.addConstraint(Sketcher.Constraint("PointOnObject", 0, 3, -1))
sketch8.addConstraint(Sketcher.Constraint("Diameter", 0, 13.0))
sketch8.addConstraint(Sketcher.Constraint("DistanceX", -1, 1, 0, 3, 22.0))
pocket2 = body.newObject("PartDesign::Pocket", "Pocket001")
pocket2.Profile = sketch8
pocket2.Length = 8
pocket2.Reversed = True

sketch9 = body.newObject("Sketcher::SketchObject", "Sketch008")
sketch9.AttachmentSupport = (doc.getObject("XY_Plane"), [""])
sketch9.MapMode = "FlatFace"
sketch9.AttachmentOffset = App.Placement(Vector(0, 0, 19), App.Rotation())
sketch9.addGeometry(Part.ArcOfCircle(Part.Circle(Vector(-32, -7, 0), Vector(0, 0, 1), 17), math.radians(25), math.radians(155)), False)
sketch9.addGeometry(Part.ArcOfCircle(Part.Circle(Vector(-32, -7, 0), Vector(0, 0, 1), 17), math.radians(155), math.radians(360)), False)
sketch9.addGeometry(Part.ArcOfCircle(Part.Circle(Vector(-33, -7, 0), Vector(0, 0, 1), 17), math.radians(0), math.radians(25)), False)
sketch9.addGeometry(Part.ArcOfCircle(Part.Circle(Vector(-32, -7, 0), Vector(0, 0, 1), 12), math.radians(35), math.radians(145)), False)
sketch9.addGeometry(Part.ArcOfCircle(Part.Circle(Vector(-32, -7, 0), Vector(0, 0, 1), 12), math.radians(0), math.radians(35)), False)
sketch9.addGeometry(Part.ArcOfCircle(Part.Circle(Vector(-32, -7, 0), Vector(0, 0, 1), 12), math.radians(145), math.radians(360)), False)
sketch9.addConstraint(Sketcher.Constraint("Tangent", 0, 2, 1, 1))
sketch9.addConstraint(Sketcher.Constraint("Tangent", 1, 2, 2, 1))
sketch9.addConstraint(Sketcher.Constraint("Tangent", 2, 2, 0, 1))
sketch9.addConstraint(Sketcher.Constraint("Tangent", 3, 1, 4, 2))
sketch9.addConstraint(Sketcher.Constraint("Tangent", 4, 1, 5, 2))
sketch9.addConstraint(Sketcher.Constraint("Tangent", 5, 1, 3, 2))
sketch9.addConstraint(Sketcher.Constraint("Coincident", 3, 3, 0, 3))
sketch9.addConstraint(Sketcher.Constraint("PointOnObject", 0, 2, -1))
sketch9.addConstraint(Sketcher.Constraint("PointOnObject", 2, 2, -1))
sketch9.addConstraint(Sketcher.Constraint("PointOnObject", 3, 1, -1))
sketch9.addConstraint(Sketcher.Constraint("PointOnObject", 5, 1, -1))
sketch9.addConstraint(Sketcher.Constraint("Horizontal", 5, 3, 1, 2))
sketch9.addConstraint(Sketcher.Constraint("Horizontal", 1, 2, 4, 1))
sketch9.addConstraint(Sketcher.Constraint("DistanceX", 0, 2, 2, 3, 15.0))
sketch9.addConstraint(Sketcher.Constraint("DistanceX", 0, 3, -1, 1, 32.5))
sketch9.addConstraint(Sketcher.Constraint("Radius", 0, 16.553485))
sketch9.addConstraint(Sketcher.Constraint("Radius", 3, 12.207807))
pocket3 = body.newObject("PartDesign::Pocket", "Pocket002")
pocket3.Profile = sketch9
pocket3.Length = 38
doc.recompute()

mirrored3 = body.newObject("PartDesign::Mirrored", "Mirrored002")
mirrored3.Originals = [pocket3]
mirrored3.MirrorPlane = (doc.getObject("YZ_Plane"), [""])
body.Tip = mirrored3

sketch10 = body.newObject("Sketcher::SketchObject", "Sketch009")
sketch10.AttachmentSupport = (doc.getObject("XZ_Plane"), [""])
sketch10.MapMode = "FlatFace"
sketch10.AttachmentOffset = App.Placement(Vector(0, 0, -36.5), App.Rotation())
sketch10.addGeometry(Part.Circle(Vector(57, -80.5, 0), Vector(0, 0, 1), 2.8), False)
sketch10.addConstraint(Sketcher.Constraint("Diameter", 0, 5.5))
sketch10.addConstraint(Sketcher.Constraint("DistanceX", -1, 1, 0, 3, 57.0))
sketch10.addConstraint(Sketcher.Constraint("DistanceY", 0, 3, -1, 1, 80.5))
pocket4 = body.newObject("PartDesign::Pocket", "Pocket003")
pocket4.Profile = sketch10
pocket4.Length = 12.5
pocket4.Reversed = True
doc.recompute()

mirrored4 = body.newObject("PartDesign::Mirrored", "Mirrored003")
mirrored4.Originals = [pocket4]
mirrored4.MirrorPlane = (doc.getObject("XY_Plane"), [""])
body.Tip = mirrored4
doc.recompute()

mirrored5 = body.newObject("PartDesign::Mirrored", "Mirrored004")
mirrored5.Originals = [pocket4]
mirrored5.MirrorPlane = (doc.getObject("YZ_Plane"), [""])
body.Tip = mirrored5

sketch11 = body.newObject("Sketcher::SketchObject", "Sketch010")
sketch11.AttachmentSupport = (doc.getObject("XZ_Plane"), [""])
sketch11.MapMode = "FlatFace"
sketch11.AttachmentOffset = App.Placement(Vector(0, 0, -36.5), App.Rotation())
sketch11.addGeometry(Part.Circle(Vector(-57, 80.5, 0), Vector(0, 0, 1), 2.8), False)
sketch11.addConstraint(Sketcher.Constraint("Diameter", 0, 5.5))
sketch11.addConstraint(Sketcher.Constraint("DistanceX", 0, 3, -1, 1, 57.0))
sketch11.addConstraint(Sketcher.Constraint("DistanceY", -1, 1, 0, 3, 80.5))
pocket5 = body.newObject("PartDesign::Pocket", "Pocket004")
pocket5.Profile = sketch11
pocket5.Length = 12.5
pocket5.Reversed = True

sketch12 = body.newObject("Sketcher::SketchObject", "Sketch011")
sketch12.AttachmentSupport = (doc.getObject("YZ_Plane"), [""])
sketch12.MapMode = "FlatFace"
sketch12.AttachmentOffset = App.Placement(Vector(0, 0, 50), App.Rotation())
sketch12.addGeometry(Part.Circle(Vector(22, 0, 0), Vector(0, 0, 1), 12), False)
sketch12.addGeometry(Part.Circle(Vector(22, 0, 0), Vector(0, 0, 1), 6), False)
sketch12.addConstraint(Sketcher.Constraint("Coincident", 1, 3, 0, 3))
sketch12.addConstraint(Sketcher.Constraint("PointOnObject", 0, 3, -1))
sketch12.addConstraint(Sketcher.Constraint("Diameter", 0, 25.0))
sketch12.addConstraint(Sketcher.Constraint("Diameter", 1, 13.0))
sketch12.addConstraint(Sketcher.Constraint("DistanceX", -1, 1, 0, 3, 22.0))
pocket6 = body.newObject("PartDesign::Pocket", "Pocket005")
pocket6.Profile = sketch12
pocket6.Length = 2.5
pocket6.Reversed = True

sketch13 = body.newObject("Sketcher::SketchObject", "Sketch012")
sketch13.AttachmentSupport = (doc.getObject("YZ_Plane"), [""])
sketch13.MapMode = "FlatFace"
sketch13.AttachmentOffset = App.Placement(Vector(0, 0, 52.5), App.Rotation())
sketch13.addGeometry(Part.Circle(Vector(22, 0, 0), Vector(0, 0, 1), 13), False)
sketch13.addConstraint(Sketcher.Constraint("PointOnObject", 0, 3, -1))
sketch13.addConstraint(Sketcher.Constraint("DistanceX", -1, 1, 0, 3, 22.0))
sketch13.addConstraint(Sketcher.Constraint("Diameter", 0, 26.826537))
pad7 = body.newObject("PartDesign::Pad", "Pad006")
pad7.Profile = sketch13
pad7.Length = 5
pad7.Reversed = True

doc.recompute()
